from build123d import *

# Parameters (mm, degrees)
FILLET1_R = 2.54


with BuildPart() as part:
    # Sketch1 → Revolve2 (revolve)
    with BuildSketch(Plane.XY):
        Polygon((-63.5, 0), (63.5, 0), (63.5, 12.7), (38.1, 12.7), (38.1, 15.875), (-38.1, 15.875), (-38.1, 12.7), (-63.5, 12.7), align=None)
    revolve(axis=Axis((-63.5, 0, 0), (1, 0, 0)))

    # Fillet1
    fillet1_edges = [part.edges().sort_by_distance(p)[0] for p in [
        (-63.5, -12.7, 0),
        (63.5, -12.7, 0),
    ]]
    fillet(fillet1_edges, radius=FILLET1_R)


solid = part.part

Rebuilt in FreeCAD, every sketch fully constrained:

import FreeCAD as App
import Part
import Sketcher
Q = App.Units.Quantity


def edges_at(feature, points):
    """Names of the edges that pass closest to the given points."""
    edges = feature.Shape.Edges
    near = lambda p: min(range(len(edges)), key=lambda i: edges[i].distToShape(Part.Vertex(*p))[0])
    return sorted({f"Edge{near(p) + 1}" for p in points})

doc = App.newDocument("Part")
body = doc.addObject("PartDesign::Body", "Body")

# Sketch on XY plane
sketch1 = body.newObject("Sketcher::SketchObject", "Sketch")
sketch1.AttachmentSupport = (doc.getObject("XY_Plane"), [""])
sketch1.MapMode = "FlatFace"
sketch1.addGeometry([
    Part.LineSegment(App.Vector(-63.5, 0, 0), App.Vector(63.5, 0, 0)),  # 0
    Part.LineSegment(App.Vector(63.5, 0, 0), App.Vector(63.5, 12.7, 0)),  # 1
    Part.LineSegment(App.Vector(63.5, 12.7, 0), App.Vector(38.1, 12.7, 0)),  # 2
    Part.LineSegment(App.Vector(38.1, 12.7, 0), App.Vector(38.1, 15.875, 0)),  # 3
    Part.LineSegment(App.Vector(38.1, 15.875, 0), App.Vector(-38.1, 15.875, 0)),  # 4
    Part.LineSegment(App.Vector(-38.1, 15.875, 0), App.Vector(-38.1, 12.7, 0)),  # 5
    Part.LineSegment(App.Vector(-38.1, 12.7, 0), App.Vector(-63.5, 12.7, 0)),  # 6
    Part.LineSegment(App.Vector(-63.5, 12.7, 0), App.Vector(-63.5, 0, 0)),  # 7
], False)
sketch1.addConstraint([
    Sketcher.Constraint("Coincident", 0, 2, 1, 1),
    Sketcher.Constraint("Coincident", 1, 2, 2, 1),
    Sketcher.Constraint("Coincident", 2, 2, 3, 1),
    Sketcher.Constraint("Coincident", 3, 2, 4, 1),
    Sketcher.Constraint("Coincident", 4, 2, 5, 1),
    Sketcher.Constraint("Coincident", 5, 2, 6, 1),
    Sketcher.Constraint("Coincident", 6, 2, 7, 1),
    Sketcher.Constraint("Coincident", 7, 2, 0, 1),
    Sketcher.Constraint("Horizontal", 0),
    Sketcher.Constraint("Vertical", 1),
    Sketcher.Constraint("Horizontal", 2),
    Sketcher.Constraint("Vertical", 3),
    Sketcher.Constraint("Horizontal", 4),
    Sketcher.Constraint("Vertical", 5),
    Sketcher.Constraint("Horizontal", 6),
    Sketcher.Constraint("Vertical", 7),
    Sketcher.Constraint("Symmetric", 0, 2, 7, 2, -1, 1),
    Sketcher.Constraint("Symmetric", 2, 2, 5, 2, -2),
    Sketcher.Constraint("DistanceX", 0, 1, 0, 2, Q("5 in")),
    Sketcher.Constraint("DistanceX", 2, 2, 2, 1, Q("1 in")),
    Sketcher.Constraint("DistanceY", 1, 1, 1, 2, Q("0.5 in")),
    Sketcher.Constraint("DistanceY", 3, 1, 3, 2, Q("0.125 in")),
])
revolution = body.newObject("PartDesign::Revolution", "Revolution")
revolution.Profile = sketch1
revolution.ReferenceAxis = (sketch1, ["H_Axis"])
revolution.Angle = 360
doc.recompute()

fillet = body.newObject("PartDesign::Fillet", "Fillet")
fillet.Base = (revolution, edges_at(revolution, [(-63.5, -12.7, 0), (63.5, -12.7, 0)]))
fillet.Radius = Q("0.1 in")

doc.recompute()
